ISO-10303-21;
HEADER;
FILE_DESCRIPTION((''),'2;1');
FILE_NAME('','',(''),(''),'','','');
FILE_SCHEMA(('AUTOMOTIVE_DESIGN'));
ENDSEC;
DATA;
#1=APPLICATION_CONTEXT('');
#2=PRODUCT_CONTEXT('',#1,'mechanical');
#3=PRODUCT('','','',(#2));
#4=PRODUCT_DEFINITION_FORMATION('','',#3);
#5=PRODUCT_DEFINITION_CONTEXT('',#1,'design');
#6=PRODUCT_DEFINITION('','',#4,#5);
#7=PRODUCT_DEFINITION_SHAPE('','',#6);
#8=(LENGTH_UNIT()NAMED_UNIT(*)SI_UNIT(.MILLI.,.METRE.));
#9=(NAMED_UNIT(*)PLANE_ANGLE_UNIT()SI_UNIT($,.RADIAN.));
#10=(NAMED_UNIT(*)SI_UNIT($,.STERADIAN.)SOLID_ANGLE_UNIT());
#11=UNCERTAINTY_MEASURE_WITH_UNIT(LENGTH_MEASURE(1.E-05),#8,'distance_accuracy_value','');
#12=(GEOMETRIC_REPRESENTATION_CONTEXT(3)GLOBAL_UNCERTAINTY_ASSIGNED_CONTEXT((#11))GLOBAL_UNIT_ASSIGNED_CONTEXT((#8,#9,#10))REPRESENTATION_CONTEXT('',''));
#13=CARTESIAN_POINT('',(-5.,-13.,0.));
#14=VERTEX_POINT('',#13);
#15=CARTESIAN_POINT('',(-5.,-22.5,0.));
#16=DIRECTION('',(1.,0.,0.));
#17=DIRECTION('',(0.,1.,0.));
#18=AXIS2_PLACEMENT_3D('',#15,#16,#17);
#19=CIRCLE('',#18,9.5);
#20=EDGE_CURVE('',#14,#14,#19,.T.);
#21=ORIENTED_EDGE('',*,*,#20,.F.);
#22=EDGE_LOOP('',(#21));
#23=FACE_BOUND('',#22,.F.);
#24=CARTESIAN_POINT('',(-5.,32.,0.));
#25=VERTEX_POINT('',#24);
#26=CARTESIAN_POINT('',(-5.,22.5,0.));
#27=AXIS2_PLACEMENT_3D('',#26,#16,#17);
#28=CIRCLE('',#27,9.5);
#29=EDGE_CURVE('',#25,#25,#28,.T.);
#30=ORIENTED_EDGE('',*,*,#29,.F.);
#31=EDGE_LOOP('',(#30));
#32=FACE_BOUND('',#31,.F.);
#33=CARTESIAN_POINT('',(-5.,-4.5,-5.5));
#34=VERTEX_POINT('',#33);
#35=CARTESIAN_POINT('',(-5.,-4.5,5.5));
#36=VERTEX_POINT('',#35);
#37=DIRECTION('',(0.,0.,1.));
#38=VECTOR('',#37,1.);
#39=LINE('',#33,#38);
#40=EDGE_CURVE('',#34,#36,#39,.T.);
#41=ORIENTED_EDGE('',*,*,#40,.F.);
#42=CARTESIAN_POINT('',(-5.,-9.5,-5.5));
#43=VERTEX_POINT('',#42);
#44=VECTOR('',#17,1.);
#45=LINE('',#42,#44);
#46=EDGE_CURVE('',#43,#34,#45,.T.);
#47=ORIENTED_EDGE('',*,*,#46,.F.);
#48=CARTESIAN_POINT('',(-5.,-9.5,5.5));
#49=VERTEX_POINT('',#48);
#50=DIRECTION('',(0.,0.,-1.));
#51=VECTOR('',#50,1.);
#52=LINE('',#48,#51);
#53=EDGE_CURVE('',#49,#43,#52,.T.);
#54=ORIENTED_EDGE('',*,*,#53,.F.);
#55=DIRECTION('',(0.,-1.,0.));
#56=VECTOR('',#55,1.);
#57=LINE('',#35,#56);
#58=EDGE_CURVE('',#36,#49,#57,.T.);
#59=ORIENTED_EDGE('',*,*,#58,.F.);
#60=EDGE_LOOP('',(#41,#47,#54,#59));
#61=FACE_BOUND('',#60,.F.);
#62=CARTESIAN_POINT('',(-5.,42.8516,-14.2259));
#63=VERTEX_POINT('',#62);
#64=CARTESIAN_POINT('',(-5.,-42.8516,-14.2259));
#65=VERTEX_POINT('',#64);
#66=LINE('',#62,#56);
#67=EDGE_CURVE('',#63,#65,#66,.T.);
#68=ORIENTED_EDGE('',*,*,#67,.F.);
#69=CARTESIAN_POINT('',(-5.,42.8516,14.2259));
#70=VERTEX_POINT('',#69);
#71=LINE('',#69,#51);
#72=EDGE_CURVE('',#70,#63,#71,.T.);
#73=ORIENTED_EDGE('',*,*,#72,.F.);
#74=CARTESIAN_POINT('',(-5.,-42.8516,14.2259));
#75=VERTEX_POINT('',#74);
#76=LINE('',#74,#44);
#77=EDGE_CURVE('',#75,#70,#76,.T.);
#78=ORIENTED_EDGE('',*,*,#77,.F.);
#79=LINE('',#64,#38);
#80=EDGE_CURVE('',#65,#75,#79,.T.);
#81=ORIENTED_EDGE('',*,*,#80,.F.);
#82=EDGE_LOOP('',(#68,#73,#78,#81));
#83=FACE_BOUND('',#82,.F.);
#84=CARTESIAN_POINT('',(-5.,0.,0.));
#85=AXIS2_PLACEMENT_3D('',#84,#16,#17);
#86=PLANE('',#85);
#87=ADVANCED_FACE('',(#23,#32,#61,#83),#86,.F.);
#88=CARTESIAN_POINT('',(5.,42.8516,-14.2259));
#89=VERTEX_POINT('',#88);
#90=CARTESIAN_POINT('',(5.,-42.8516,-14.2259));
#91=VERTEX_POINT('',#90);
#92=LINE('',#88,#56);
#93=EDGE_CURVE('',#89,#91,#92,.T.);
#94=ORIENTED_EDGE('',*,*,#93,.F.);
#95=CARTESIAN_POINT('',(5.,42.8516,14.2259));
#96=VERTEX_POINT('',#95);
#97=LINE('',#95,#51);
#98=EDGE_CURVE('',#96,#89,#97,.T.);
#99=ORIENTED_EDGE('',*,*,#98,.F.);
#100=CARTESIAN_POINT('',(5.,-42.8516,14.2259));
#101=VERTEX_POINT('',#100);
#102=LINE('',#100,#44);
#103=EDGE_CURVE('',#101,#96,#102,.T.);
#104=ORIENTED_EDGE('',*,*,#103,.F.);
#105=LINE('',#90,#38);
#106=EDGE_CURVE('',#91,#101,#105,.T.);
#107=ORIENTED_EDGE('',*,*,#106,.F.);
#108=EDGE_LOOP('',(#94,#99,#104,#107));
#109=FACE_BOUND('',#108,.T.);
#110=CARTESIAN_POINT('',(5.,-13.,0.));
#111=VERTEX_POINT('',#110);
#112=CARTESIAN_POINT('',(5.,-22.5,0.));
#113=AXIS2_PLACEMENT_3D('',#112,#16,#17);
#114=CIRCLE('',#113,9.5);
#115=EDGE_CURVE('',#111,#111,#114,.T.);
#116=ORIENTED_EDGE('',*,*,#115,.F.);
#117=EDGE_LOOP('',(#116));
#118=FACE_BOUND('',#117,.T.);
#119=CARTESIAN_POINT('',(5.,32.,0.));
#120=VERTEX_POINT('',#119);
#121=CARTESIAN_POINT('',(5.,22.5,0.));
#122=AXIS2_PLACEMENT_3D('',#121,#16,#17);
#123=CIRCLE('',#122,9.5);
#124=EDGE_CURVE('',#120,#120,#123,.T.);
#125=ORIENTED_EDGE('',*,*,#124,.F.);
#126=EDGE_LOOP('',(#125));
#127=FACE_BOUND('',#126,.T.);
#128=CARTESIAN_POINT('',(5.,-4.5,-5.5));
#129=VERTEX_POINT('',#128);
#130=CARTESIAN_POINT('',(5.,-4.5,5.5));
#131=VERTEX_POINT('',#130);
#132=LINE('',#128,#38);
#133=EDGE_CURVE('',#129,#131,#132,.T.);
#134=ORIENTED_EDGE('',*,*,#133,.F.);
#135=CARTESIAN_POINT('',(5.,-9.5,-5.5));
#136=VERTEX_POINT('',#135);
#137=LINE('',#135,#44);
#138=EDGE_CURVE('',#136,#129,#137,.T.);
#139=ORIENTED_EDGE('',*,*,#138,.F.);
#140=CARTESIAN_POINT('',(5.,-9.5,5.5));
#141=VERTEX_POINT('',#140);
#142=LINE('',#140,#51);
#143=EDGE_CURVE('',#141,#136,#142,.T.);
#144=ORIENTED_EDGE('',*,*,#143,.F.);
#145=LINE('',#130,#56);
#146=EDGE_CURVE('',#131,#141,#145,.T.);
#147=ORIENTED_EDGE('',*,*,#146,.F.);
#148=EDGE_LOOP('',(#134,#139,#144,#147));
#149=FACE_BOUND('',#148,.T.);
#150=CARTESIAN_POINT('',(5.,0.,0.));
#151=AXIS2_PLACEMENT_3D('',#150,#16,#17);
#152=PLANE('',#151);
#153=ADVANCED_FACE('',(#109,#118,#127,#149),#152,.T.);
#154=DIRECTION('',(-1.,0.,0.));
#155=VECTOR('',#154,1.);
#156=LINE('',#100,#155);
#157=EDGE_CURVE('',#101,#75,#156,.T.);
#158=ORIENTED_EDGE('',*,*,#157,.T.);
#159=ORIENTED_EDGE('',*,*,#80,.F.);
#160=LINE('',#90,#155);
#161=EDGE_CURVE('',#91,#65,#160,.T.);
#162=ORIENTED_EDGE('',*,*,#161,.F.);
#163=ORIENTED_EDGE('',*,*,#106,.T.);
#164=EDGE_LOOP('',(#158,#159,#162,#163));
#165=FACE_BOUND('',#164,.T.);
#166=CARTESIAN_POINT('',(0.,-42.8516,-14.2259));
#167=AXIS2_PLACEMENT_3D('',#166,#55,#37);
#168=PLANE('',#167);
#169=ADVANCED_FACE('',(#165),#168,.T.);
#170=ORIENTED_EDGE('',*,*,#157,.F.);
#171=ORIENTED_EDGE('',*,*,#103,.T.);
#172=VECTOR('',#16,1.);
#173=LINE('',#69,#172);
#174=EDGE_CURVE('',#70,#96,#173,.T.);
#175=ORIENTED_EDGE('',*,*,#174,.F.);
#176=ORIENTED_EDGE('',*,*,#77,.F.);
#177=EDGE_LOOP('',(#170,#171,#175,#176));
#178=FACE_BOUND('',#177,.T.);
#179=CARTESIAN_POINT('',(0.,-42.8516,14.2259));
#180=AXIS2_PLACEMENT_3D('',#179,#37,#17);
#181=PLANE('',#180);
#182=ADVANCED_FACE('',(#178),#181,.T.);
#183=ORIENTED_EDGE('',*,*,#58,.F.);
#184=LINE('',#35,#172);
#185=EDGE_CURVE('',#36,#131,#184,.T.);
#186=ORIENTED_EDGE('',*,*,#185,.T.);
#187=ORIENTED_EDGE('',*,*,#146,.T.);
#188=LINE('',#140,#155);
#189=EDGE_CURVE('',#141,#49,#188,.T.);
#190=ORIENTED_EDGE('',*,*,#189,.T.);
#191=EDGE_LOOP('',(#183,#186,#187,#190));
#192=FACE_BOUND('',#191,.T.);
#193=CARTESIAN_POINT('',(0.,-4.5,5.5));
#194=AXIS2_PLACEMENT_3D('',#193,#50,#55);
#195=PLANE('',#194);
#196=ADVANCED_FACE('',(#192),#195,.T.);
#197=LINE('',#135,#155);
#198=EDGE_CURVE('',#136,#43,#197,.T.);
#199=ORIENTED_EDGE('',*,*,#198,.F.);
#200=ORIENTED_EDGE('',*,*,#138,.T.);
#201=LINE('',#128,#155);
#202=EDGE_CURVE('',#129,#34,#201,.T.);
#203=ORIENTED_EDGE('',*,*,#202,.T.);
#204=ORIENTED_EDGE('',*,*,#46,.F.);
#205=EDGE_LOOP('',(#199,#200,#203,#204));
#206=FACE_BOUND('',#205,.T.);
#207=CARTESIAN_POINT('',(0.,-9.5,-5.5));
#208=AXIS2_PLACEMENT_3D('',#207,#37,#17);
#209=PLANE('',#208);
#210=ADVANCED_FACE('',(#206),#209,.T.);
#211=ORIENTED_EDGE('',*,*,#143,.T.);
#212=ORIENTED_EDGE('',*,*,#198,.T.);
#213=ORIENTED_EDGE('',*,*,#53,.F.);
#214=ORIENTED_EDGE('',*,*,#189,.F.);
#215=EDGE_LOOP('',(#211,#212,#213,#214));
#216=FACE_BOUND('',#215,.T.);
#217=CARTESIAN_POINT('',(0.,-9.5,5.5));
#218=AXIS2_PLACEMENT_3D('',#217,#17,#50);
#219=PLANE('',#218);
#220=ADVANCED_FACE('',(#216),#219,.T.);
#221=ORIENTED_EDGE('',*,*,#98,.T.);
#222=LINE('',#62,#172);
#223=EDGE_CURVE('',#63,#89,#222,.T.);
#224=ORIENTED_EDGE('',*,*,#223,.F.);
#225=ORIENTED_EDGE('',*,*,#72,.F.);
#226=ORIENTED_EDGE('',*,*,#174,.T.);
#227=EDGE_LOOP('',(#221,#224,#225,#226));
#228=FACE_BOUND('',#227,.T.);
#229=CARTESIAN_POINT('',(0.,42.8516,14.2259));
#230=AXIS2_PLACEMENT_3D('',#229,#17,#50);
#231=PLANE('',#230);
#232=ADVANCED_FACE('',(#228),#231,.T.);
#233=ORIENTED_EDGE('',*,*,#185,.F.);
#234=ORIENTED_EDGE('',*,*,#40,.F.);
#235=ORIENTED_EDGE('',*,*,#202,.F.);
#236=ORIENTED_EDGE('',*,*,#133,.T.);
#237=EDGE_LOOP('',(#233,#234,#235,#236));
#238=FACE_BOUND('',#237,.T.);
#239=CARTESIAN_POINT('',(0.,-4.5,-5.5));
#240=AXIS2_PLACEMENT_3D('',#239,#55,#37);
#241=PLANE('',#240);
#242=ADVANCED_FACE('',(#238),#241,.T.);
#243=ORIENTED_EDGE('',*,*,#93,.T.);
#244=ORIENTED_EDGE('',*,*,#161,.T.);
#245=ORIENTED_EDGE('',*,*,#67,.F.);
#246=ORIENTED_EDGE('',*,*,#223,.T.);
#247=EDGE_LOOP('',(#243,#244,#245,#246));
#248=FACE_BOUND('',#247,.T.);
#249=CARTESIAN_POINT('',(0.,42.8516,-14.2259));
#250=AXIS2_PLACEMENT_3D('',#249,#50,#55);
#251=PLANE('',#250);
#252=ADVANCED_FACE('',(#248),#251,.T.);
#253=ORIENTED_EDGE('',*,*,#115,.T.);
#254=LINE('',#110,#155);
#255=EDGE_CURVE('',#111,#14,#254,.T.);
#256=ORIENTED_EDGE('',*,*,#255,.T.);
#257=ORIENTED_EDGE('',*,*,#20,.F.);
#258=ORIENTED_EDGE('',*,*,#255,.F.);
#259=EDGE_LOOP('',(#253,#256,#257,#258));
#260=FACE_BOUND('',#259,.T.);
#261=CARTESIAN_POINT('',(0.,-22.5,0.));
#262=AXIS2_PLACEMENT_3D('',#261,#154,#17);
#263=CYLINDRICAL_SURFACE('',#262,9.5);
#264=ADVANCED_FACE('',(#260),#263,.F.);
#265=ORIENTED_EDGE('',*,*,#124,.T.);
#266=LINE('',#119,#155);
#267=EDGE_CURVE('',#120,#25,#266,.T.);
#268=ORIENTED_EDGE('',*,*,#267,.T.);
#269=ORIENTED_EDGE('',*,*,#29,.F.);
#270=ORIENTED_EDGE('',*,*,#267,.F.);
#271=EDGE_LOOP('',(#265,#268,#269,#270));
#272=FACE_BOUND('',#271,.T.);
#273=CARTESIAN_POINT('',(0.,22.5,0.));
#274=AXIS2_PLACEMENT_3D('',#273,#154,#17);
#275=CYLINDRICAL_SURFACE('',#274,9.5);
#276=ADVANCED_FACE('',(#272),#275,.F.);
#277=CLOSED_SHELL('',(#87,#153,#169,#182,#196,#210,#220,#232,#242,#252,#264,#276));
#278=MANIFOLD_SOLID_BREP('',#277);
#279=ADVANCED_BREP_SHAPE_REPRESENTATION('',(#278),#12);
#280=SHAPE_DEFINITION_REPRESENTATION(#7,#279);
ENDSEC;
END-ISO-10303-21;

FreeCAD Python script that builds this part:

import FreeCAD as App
import Part
import Sketcher

V = App.Vector

doc = App.newDocument("Part")
body = doc.addObject("PartDesign::Body", "Body")

sketch1 = body.newObject("Sketcher::SketchObject", "Sketch")
sketch1.AttachmentSupport = (doc.getObject("YZ_Plane"), [""])
sketch1.MapMode = "FlatFace"
sketch1.addGeometry([
    Part.LineSegment(V(-42.8516, -14.2259, 0), V(42.8516, -14.2259, 0)),
    Part.LineSegment(V(42.8516, -14.2259, 0), V(42.8516, 14.2259, 0)),
    Part.LineSegment(V(42.8516, 14.2259, 0), V(-42.8516, 14.2259, 0)),
    Part.LineSegment(V(-42.8516, 14.2259, 0), V(-42.8516, -14.2259, 0)),
    Part.Circle(V(-22.5, 0, 0), V(0, 0, 1), 9.5),
    Part.LineSegment(V(-9.5, 5.5, 0), V(-4.5, 5.5, 0)),
    Part.LineSegment(V(-4.5, 5.5, 0), V(-4.5, -5.5, 0)),
    Part.LineSegment(V(-4.5, -5.5, 0), V(-9.5, -5.5, 0)),
    Part.LineSegment(V(-9.5, -5.5, 0), V(-9.5, 5.5, 0)),
    Part.Circle(V(22.5, 0, 0), V(0, 0, 1), 9.5),
], False)
sketch1.addConstraint([
    Sketcher.Constraint("Coincident", 0, 2, 1, 1),
    Sketcher.Constraint("Coincident", 1, 2, 2, 1),
    Sketcher.Constraint("Coincident", 2, 2, 3, 1),
    Sketcher.Constraint("Coincident", 3, 2, 0, 1),
    Sketcher.Constraint("Coincident", 5, 2, 6, 1),
    Sketcher.Constraint("Coincident", 6, 2, 7, 1),
    Sketcher.Constraint("Coincident", 7, 2, 8, 1),
    Sketcher.Constraint("Coincident", 8, 2, 5, 1),
    Sketcher.Constraint("Horizontal", 0),
    Sketcher.Constraint("Vertical", 1),
    Sketcher.Constraint("Horizontal", 2),
    Sketcher.Constraint("Vertical", 3),
    Sketcher.Constraint("Horizontal", 5),
    Sketcher.Constraint("Vertical", 6),
    Sketcher.Constraint("Horizontal", 7),
    Sketcher.Constraint("Vertical", 8),
    Sketcher.Constraint("Equal", 4, 9),
    Sketcher.Constraint("Symmetric", 4, 3, 9, 3, -1, 1),
    Sketcher.Constraint("Symmetric", 0, 2, 2, 2, -1, 1),
    Sketcher.Constraint("PointOnObject", 4, 3, -1),
    Sketcher.Constraint("Diameter", 4, 19.0),
    Sketcher.Constraint("DistanceY", 6, 2, 6, 1, 11.0),
    Sketcher.Constraint("DistanceX", 5, 2, 9, 3, 27.0),
    Sketcher.Constraint("DistanceX", 4, 3, 7, 2, 13.0),
    Sketcher.Constraint("DistanceX", 5, 1, 5, 2, 5.0),
    Sketcher.Constraint("DistanceY", -1, 1, 5, 2, 5.5),
    Sketcher.Constraint("DistanceX", 0, 1, 0, 2, 85.7032),
    Sketcher.Constraint("DistanceY", 1, 1, 1, 2, 28.4518),
])
pad1 = body.newObject("PartDesign::Pad", "Pad")
pad1.Profile = sketch1
pad1.Length = 10
pad1.Midplane = True

doc.recompute()
